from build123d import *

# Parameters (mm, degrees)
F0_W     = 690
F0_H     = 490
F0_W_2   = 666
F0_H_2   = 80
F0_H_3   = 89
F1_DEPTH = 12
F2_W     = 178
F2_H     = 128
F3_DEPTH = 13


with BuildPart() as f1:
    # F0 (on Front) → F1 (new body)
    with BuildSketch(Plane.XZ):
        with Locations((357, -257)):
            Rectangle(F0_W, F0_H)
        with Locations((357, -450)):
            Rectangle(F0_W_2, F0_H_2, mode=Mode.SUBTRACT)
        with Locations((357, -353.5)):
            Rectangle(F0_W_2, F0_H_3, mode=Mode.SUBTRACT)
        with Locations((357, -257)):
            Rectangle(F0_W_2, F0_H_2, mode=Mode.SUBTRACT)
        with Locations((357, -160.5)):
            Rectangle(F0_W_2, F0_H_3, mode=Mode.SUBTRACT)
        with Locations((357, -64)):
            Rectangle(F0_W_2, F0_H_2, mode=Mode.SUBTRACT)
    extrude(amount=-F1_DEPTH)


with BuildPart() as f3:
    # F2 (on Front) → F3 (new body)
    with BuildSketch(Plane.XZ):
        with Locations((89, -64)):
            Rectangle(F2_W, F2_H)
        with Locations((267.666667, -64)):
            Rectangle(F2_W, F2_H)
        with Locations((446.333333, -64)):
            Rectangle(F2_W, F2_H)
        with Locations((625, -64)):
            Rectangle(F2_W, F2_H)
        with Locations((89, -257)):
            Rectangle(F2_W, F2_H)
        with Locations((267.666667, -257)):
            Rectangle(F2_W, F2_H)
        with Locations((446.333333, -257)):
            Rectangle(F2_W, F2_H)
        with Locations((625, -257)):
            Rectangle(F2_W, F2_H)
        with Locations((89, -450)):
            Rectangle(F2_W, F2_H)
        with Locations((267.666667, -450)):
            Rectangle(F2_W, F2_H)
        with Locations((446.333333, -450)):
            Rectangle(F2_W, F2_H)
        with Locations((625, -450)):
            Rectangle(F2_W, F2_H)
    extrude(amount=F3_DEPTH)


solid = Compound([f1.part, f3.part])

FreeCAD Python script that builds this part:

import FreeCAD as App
import Part
import Sketcher

V = App.Vector


def add_polygon(sketch, points):
    """Adds a closed chain of lines whose ends are joined by coincident constraints."""
    first, n = sketch.GeometryCount, len(points)
    for a, b in zip(points, points[1:] + points[:1]):
        sketch.addGeometry(Part.LineSegment(App.Vector(*a, 0), App.Vector(*b, 0)), False)
    for i in range(n):
        sketch.addConstraint(Sketcher.Constraint("Coincident", first + i, 2, first + (i + 1) % n, 1))

doc = App.newDocument("Part")
body = doc.addObject("PartDesign::Body", "Body")

sketch1 = body.newObject("Sketcher::SketchObject", "Sketch")
sketch1.AttachmentSupport = (doc.getObject("XZ_Plane"), [""])
sketch1.MapMode = "FlatFace"
add_polygon(sketch1, [(12, -12), (12, -502), (702, -502), (702, -12)])
add_polygon(sketch1, [(690, -490), (24, -490), (24, -410), (690, -410)])
add_polygon(sketch1, [(690, -398), (24, -398), (24, -309), (690, -309)])
add_polygon(sketch1, [(690, -297), (24, -297), (24, -217), (690, -217)])
add_polygon(sketch1, [(690, -205), (24, -205), (24, -116), (690, -116)])
add_polygon(sketch1, [(690, -104), (24, -104), (24, -24), (690, -24)])
sketch1.addConstraint(Sketcher.Constraint("Vertical", 0))
sketch1.addConstraint(Sketcher.Constraint("Horizontal", 1))
sketch1.addConstraint(Sketcher.Constraint("Vertical", 2))
sketch1.addConstraint(Sketcher.Constraint("Horizontal", 3))
sketch1.addConstraint(Sketcher.Constraint("Horizontal", 4))
sketch1.addConstraint(Sketcher.Constraint("Vertical", 5))
sketch1.addConstraint(Sketcher.Constraint("Horizontal", 6))
sketch1.addConstraint(Sketcher.Constraint("Vertical", 7))
sketch1.addConstraint(Sketcher.Constraint("Horizontal", 8))
sketch1.addConstraint(Sketcher.Constraint("Vertical", 9))
sketch1.addConstraint(Sketcher.Constraint("Horizontal", 10))
sketch1.addConstraint(Sketcher.Constraint("Vertical", 11))
sketch1.addConstraint(Sketcher.Constraint("Horizontal", 12))
sketch1.addConstraint(Sketcher.Constraint("Vertical", 13))
sketch1.addConstraint(Sketcher.Constraint("Horizontal", 14))
sketch1.addConstraint(Sketcher.Constraint("Vertical", 15))
sketch1.addConstraint(Sketcher.Constraint("Horizontal", 16))
sketch1.addConstraint(Sketcher.Constraint("Vertical", 17))
sketch1.addConstraint(Sketcher.Constraint("Horizontal", 18))
sketch1.addConstraint(Sketcher.Constraint("Vertical", 19))
sketch1.addConstraint(Sketcher.Constraint("Horizontal", 20))
sketch1.addConstraint(Sketcher.Constraint("Vertical", 21))
sketch1.addConstraint(Sketcher.Constraint("Horizontal", 22))
sketch1.addConstraint(Sketcher.Constraint("Vertical", 23))
sketch1.addConstraint(Sketcher.Constraint("Vertical", 5, 2, 8, 2))
sketch1.addConstraint(Sketcher.Constraint("Vertical", 7, 2, 10, 2))
sketch1.addConstraint(Sketcher.Constraint("Vertical", 9, 2, 12, 2))
sketch1.addConstraint(Sketcher.Constraint("Vertical", 11, 2, 14, 2))
sketch1.addConstraint(Sketcher.Constraint("Vertical", 13, 2, 16, 2))
sketch1.addConstraint(Sketcher.Constraint("Vertical", 15, 2, 18, 2))
sketch1.addConstraint(Sketcher.Constraint("Vertical", 17, 2, 20, 2))
sketch1.addConstraint(Sketcher.Constraint("Vertical", 19, 2, 22, 2))
sketch1.addConstraint(Sketcher.Constraint("Equal", 7, 13))
sketch1.addConstraint(Sketcher.Constraint("Equal", 11, 17))
sketch1.addConstraint(Sketcher.Constraint("Equal", 15, 21))
sketch1.addConstraint(Sketcher.Constraint("DistanceX", 1, 1, 1, 2, 690.0))
sketch1.addConstraint(Sketcher.Constraint("DistanceX", 4, 2, 4, 1, 666.0))
sketch1.addConstraint(Sketcher.Constraint("DistanceY", 0, 2, 0, 1, 490.0))
sketch1.addConstraint(Sketcher.Constraint("DistanceY", 5, 1, 5, 2, 80.0))
sketch1.addConstraint(Sketcher.Constraint("DistanceY", 9, 1, 9, 2, 89.0))
sketch1.addConstraint(Sketcher.Constraint("DistanceX", -1, 1, 0, 2, 12.0))
sketch1.addConstraint(Sketcher.Constraint("DistanceY", 0, 2, -1, 1, 502.0))
sketch1.addConstraint(Sketcher.Constraint("DistanceX", -1, 1, 4, 2, 24.0))
sketch1.addConstraint(Sketcher.Constraint("DistanceY", 4, 2, -1, 1, 490.0))
sketch1.addConstraint(Sketcher.Constraint("DistanceY", 8, 2, -1, 1, 398.0))
sketch1.addConstraint(Sketcher.Constraint("DistanceY", 12, 2, -1, 1, 297.0))
sketch1.addConstraint(Sketcher.Constraint("DistanceY", 16, 2, -1, 1, 205.0))
sketch1.addConstraint(Sketcher.Constraint("DistanceY", 20, 2, -1, 1, 104.0))
pad1 = body.newObject("PartDesign::Pad", "Pad")
pad1.Profile = sketch1
pad1.Length = 12
pad1.Reversed = True
body2 = doc.addObject("PartDesign::Body", "Body001")
body2.AllowCompound = True

sketch2 = body2.newObject("Sketcher::SketchObject", "Sketch001")
sketch2.AttachmentSupport = (doc.getObject("XZ_Plane001"), [""])
sketch2.MapMode = "FlatFace"
add_polygon(sketch2, [(0, 0), (0, -128), (178, -128), (178, 0)])
add_polygon(sketch2, [(178.666667, 0), (178.666667, -128), (356.666667, -128), (356.666667, 0)])
add_polygon(sketch2, [(357.333333, 0), (357.333333, -128), (535.333333, -128), (535.333333, 0)])
add_polygon(sketch2, [(536, 0), (536, -128), (714, -128), (714, 0)])
add_polygon(sketch2, [(0, -193), (0, -321), (178, -321), (178, -193)])
add_polygon(sketch2, [(178.666667, -193), (178.666667, -321), (356.666667, -321), (356.666667, -193)])
add_polygon(sketch2, [(357.333333, -193), (357.333333, -321), (535.333333, -321), (535.333333, -193)])
add_polygon(sketch2, [(536, -193), (536, -321), (714, -321), (714, -193)])
add_polygon(sketch2, [(0, -386), (0, -514), (178, -514), (178, -386)])
add_polygon(sketch2, [(178.666667, -386), (178.666667, -514), (356.666667, -514), (356.666667, -386)])
add_polygon(sketch2, [(357.333333, -386), (357.333333, -514), (535.333333, -514), (535.333333, -386)])
add_polygon(sketch2, [(536, -386), (536, -514), (714, -514), (714, -386)])
sketch2.addConstraint(Sketcher.Constraint("Vertical", 0))
sketch2.addConstraint(Sketcher.Constraint("Horizontal", 1))
sketch2.addConstraint(Sketcher.Constraint("Vertical", 2))
sketch2.addConstraint(Sketcher.Constraint("Horizontal", 3))
sketch2.addConstraint(Sketcher.Constraint("Vertical", 4))
sketch2.addConstraint(Sketcher.Constraint("Horizontal", 5))
sketch2.addConstraint(Sketcher.Constraint("Vertical", 6))
sketch2.addConstraint(Sketcher.Constraint("Horizontal", 7))
sketch2.addConstraint(Sketcher.Constraint("Vertical", 8))
sketch2.addConstraint(Sketcher.Constraint("Horizontal", 9))
sketch2.addConstraint(Sketcher.Constraint("Vertical", 10))
sketch2.addConstraint(Sketcher.Constraint("Horizontal", 11))
sketch2.addConstraint(Sketcher.Constraint("Vertical", 12))
sketch2.addConstraint(Sketcher.Constraint("Horizontal", 13))
sketch2.addConstraint(Sketcher.Constraint("Vertical", 14))
sketch2.addConstraint(Sketcher.Constraint("Horizontal", 15))
sketch2.addConstraint(Sketcher.Constraint("Vertical", 16))
sketch2.addConstraint(Sketcher.Constraint("Horizontal", 17))
sketch2.addConstraint(Sketcher.Constraint("Vertical", 18))
sketch2.addConstraint(Sketcher.Constraint("Horizontal", 19))
sketch2.addConstraint(Sketcher.Constraint("Vertical", 20))
sketch2.addConstraint(Sketcher.Constraint("Horizontal", 21))
sketch2.addConstraint(Sketcher.Constraint("Vertical", 22))
sketch2.addConstraint(Sketcher.Constraint("Horizontal", 23))
sketch2.addConstraint(Sketcher.Constraint("Vertical", 24))
sketch2.addConstraint(Sketcher.Constraint("Horizontal", 25))
sketch2.addConstraint(Sketcher.Constraint("Vertical", 26))
sketch2.addConstraint(Sketcher.Constraint("Horizontal", 27))
sketch2.addConstraint(Sketcher.Constraint("Vertical", 28))
sketch2.addConstraint(Sketcher.Constraint("Horizontal", 29))
sketch2.addConstraint(Sketcher.Constraint("Vertical", 30))
sketch2.addConstraint(Sketcher.Constraint("Horizontal", 31))
sketch2.addConstraint(Sketcher.Constraint("Vertical", 32))
sketch2.addConstraint(Sketcher.Constraint("Horizontal", 33))
sketch2.addConstraint(Sketcher.Constraint("Vertical", 34))
sketch2.addConstraint(Sketcher.Constraint("Horizontal", 35))
sketch2.addConstraint(Sketcher.Constraint("Vertical", 36))
sketch2.addConstraint(Sketcher.Constraint("Horizontal", 37))
sketch2.addConstraint(Sketcher.Constraint("Vertical", 38))
sketch2.addConstraint(Sketcher.Constraint("Horizontal", 39))
sketch2.addConstraint(Sketcher.Constraint("Vertical", 40))
sketch2.addConstraint(Sketcher.Constraint("Horizontal", 41))
sketch2.addConstraint(Sketcher.Constraint("Vertical", 42))
sketch2.addConstraint(Sketcher.Constraint("Horizontal", 43))
sketch2.addConstraint(Sketcher.Constraint("Vertical", 44))
sketch2.addConstraint(Sketcher.Constraint("Horizontal", 45))
sketch2.addConstraint(Sketcher.Constraint("Vertical", 46))
sketch2.addConstraint(Sketcher.Constraint("Horizontal", 47))
sketch2.addConstraint(Sketcher.Constraint("Coincident", 3, 2, -1, 1))
sketch2.addConstraint(Sketcher.Constraint("PointOnObject", 6, 2, -1))
sketch2.addConstraint(Sketcher.Constraint("PointOnObject", 10, 2, -1))
sketch2.addConstraint(Sketcher.Constraint("PointOnObject", 14, 2, -1))
sketch2.addConstraint(Sketcher.Constraint("PointOnObject", 16, 2, -2))
sketch2.addConstraint(Sketcher.Constraint("PointOnObject", 32, 2, -2))
sketch2.addConstraint(Sketcher.Constraint("Horizontal", 1, 2, 4, 2))
sketch2.addConstraint(Sketcher.Constraint("Horizontal", 5, 2, 8, 2))
sketch2.addConstraint(Sketcher.Constraint("Horizontal", 9, 2, 12, 2))
sketch2.addConstraint(Sketcher.Constraint("Horizontal", 17, 2, 20, 2))
sketch2.addConstraint(Sketcher.Constraint("Horizontal", 19, 2, 22, 2))
sketch2.addConstraint(Sketcher.Constraint("Horizontal", 21, 2, 24, 2))
sketch2.addConstraint(Sketcher.Constraint("Horizontal", 23, 2, 26, 2))
sketch2.addConstraint(Sketcher.Constraint("Horizontal", 25, 2, 28, 2))
sketch2.addConstraint(Sketcher.Constraint("Horizontal", 27, 2, 30, 2))
sketch2.addConstraint(Sketcher.Constraint("Horizontal", 33, 2, 36, 2))
sketch2.addConstraint(Sketcher.Constraint("Horizontal", 35, 2, 38, 2))
sketch2.addConstraint(Sketcher.Constraint("Horizontal", 37, 2, 40, 2))
sketch2.addConstraint(Sketcher.Constraint("Horizontal", 39, 2, 42, 2))
sketch2.addConstraint(Sketcher.Constraint("Horizontal", 41, 2, 44, 2))
sketch2.addConstraint(Sketcher.Constraint("Horizontal", 43, 2, 46, 2))
sketch2.addConstraint(Sketcher.Constraint("Vertical", 2, 2, 17, 2))
sketch2.addConstraint(Sketcher.Constraint("Vertical", 7, 2, 20, 2))
sketch2.addConstraint(Sketcher.Constraint("Vertical", 6, 2, 21, 2))
sketch2.addConstraint(Sketcher.Constraint("Vertical", 11, 2, 24, 2))
sketch2.addConstraint(Sketcher.Constraint("Vertical", 10, 2, 25, 2))
sketch2.addConstraint(Sketcher.Constraint("Vertical", 15, 2, 28, 2))
sketch2.addConstraint(Sketcher.Constraint("Vertical", 14, 2, 29, 2))
sketch2.addConstraint(Sketcher.Constraint("Vertical", 18, 2, 33, 2))
sketch2.addConstraint(Sketcher.Constraint("Vertical", 23, 2, 36, 2))
sketch2.addConstraint(Sketcher.Constraint("Vertical", 22, 2, 37, 2))
sketch2.addConstraint(Sketcher.Constraint("Vertical", 27, 2, 40, 2))
sketch2.addConstraint(Sketcher.Constraint("Vertical", 26, 2, 41, 2))
sketch2.addConstraint(Sketcher.Constraint("Vertical", 31, 2, 44, 2))
sketch2.addConstraint(Sketcher.Constraint("Vertical", 30, 2, 45, 2))
sketch2.addConstraint(Sketcher.Constraint("Equal", 3, 5))
sketch2.addConstraint(Sketcher.Constraint("Equal", 7, 9))
sketch2.addConstraint(Sketcher.Constraint("Equal", 11, 13))
sketch2.addConstraint(Sketcher.Constraint("Equal", 14, 16))
sketch2.addConstraint(Sketcher.Constraint("Equal", 30, 32))
sketch2.addConstraint(Sketcher.Constraint("DistanceX", 1, 1, 1, 2, 178.0))
sketch2.addConstraint(Sketcher.Constraint("DistanceY", 0, 2, 0, 1, 128.0))
sketch2.addConstraint(Sketcher.Constraint("DistanceX", -1, 1, 12, 2, 536.0))
sketch2.addConstraint(Sketcher.Constraint("DistanceY", 16, 2, -1, 1, 321.0))
sketch2.addConstraint(Sketcher.Constraint("DistanceY", 32, 2, -1, 1, 514.0))
sketch2.addConstraint(Sketcher.Constraint("DistanceX", -1, 1, 4, 2, 178.666667))
sketch2.addConstraint(Sketcher.Constraint("DistanceX", -1, 1, 8, 2, 357.333333))
pad2 = body2.newObject("PartDesign::Pad", "Pad001")
pad2.Profile = sketch2
pad2.Length = 13

doc.recompute()
